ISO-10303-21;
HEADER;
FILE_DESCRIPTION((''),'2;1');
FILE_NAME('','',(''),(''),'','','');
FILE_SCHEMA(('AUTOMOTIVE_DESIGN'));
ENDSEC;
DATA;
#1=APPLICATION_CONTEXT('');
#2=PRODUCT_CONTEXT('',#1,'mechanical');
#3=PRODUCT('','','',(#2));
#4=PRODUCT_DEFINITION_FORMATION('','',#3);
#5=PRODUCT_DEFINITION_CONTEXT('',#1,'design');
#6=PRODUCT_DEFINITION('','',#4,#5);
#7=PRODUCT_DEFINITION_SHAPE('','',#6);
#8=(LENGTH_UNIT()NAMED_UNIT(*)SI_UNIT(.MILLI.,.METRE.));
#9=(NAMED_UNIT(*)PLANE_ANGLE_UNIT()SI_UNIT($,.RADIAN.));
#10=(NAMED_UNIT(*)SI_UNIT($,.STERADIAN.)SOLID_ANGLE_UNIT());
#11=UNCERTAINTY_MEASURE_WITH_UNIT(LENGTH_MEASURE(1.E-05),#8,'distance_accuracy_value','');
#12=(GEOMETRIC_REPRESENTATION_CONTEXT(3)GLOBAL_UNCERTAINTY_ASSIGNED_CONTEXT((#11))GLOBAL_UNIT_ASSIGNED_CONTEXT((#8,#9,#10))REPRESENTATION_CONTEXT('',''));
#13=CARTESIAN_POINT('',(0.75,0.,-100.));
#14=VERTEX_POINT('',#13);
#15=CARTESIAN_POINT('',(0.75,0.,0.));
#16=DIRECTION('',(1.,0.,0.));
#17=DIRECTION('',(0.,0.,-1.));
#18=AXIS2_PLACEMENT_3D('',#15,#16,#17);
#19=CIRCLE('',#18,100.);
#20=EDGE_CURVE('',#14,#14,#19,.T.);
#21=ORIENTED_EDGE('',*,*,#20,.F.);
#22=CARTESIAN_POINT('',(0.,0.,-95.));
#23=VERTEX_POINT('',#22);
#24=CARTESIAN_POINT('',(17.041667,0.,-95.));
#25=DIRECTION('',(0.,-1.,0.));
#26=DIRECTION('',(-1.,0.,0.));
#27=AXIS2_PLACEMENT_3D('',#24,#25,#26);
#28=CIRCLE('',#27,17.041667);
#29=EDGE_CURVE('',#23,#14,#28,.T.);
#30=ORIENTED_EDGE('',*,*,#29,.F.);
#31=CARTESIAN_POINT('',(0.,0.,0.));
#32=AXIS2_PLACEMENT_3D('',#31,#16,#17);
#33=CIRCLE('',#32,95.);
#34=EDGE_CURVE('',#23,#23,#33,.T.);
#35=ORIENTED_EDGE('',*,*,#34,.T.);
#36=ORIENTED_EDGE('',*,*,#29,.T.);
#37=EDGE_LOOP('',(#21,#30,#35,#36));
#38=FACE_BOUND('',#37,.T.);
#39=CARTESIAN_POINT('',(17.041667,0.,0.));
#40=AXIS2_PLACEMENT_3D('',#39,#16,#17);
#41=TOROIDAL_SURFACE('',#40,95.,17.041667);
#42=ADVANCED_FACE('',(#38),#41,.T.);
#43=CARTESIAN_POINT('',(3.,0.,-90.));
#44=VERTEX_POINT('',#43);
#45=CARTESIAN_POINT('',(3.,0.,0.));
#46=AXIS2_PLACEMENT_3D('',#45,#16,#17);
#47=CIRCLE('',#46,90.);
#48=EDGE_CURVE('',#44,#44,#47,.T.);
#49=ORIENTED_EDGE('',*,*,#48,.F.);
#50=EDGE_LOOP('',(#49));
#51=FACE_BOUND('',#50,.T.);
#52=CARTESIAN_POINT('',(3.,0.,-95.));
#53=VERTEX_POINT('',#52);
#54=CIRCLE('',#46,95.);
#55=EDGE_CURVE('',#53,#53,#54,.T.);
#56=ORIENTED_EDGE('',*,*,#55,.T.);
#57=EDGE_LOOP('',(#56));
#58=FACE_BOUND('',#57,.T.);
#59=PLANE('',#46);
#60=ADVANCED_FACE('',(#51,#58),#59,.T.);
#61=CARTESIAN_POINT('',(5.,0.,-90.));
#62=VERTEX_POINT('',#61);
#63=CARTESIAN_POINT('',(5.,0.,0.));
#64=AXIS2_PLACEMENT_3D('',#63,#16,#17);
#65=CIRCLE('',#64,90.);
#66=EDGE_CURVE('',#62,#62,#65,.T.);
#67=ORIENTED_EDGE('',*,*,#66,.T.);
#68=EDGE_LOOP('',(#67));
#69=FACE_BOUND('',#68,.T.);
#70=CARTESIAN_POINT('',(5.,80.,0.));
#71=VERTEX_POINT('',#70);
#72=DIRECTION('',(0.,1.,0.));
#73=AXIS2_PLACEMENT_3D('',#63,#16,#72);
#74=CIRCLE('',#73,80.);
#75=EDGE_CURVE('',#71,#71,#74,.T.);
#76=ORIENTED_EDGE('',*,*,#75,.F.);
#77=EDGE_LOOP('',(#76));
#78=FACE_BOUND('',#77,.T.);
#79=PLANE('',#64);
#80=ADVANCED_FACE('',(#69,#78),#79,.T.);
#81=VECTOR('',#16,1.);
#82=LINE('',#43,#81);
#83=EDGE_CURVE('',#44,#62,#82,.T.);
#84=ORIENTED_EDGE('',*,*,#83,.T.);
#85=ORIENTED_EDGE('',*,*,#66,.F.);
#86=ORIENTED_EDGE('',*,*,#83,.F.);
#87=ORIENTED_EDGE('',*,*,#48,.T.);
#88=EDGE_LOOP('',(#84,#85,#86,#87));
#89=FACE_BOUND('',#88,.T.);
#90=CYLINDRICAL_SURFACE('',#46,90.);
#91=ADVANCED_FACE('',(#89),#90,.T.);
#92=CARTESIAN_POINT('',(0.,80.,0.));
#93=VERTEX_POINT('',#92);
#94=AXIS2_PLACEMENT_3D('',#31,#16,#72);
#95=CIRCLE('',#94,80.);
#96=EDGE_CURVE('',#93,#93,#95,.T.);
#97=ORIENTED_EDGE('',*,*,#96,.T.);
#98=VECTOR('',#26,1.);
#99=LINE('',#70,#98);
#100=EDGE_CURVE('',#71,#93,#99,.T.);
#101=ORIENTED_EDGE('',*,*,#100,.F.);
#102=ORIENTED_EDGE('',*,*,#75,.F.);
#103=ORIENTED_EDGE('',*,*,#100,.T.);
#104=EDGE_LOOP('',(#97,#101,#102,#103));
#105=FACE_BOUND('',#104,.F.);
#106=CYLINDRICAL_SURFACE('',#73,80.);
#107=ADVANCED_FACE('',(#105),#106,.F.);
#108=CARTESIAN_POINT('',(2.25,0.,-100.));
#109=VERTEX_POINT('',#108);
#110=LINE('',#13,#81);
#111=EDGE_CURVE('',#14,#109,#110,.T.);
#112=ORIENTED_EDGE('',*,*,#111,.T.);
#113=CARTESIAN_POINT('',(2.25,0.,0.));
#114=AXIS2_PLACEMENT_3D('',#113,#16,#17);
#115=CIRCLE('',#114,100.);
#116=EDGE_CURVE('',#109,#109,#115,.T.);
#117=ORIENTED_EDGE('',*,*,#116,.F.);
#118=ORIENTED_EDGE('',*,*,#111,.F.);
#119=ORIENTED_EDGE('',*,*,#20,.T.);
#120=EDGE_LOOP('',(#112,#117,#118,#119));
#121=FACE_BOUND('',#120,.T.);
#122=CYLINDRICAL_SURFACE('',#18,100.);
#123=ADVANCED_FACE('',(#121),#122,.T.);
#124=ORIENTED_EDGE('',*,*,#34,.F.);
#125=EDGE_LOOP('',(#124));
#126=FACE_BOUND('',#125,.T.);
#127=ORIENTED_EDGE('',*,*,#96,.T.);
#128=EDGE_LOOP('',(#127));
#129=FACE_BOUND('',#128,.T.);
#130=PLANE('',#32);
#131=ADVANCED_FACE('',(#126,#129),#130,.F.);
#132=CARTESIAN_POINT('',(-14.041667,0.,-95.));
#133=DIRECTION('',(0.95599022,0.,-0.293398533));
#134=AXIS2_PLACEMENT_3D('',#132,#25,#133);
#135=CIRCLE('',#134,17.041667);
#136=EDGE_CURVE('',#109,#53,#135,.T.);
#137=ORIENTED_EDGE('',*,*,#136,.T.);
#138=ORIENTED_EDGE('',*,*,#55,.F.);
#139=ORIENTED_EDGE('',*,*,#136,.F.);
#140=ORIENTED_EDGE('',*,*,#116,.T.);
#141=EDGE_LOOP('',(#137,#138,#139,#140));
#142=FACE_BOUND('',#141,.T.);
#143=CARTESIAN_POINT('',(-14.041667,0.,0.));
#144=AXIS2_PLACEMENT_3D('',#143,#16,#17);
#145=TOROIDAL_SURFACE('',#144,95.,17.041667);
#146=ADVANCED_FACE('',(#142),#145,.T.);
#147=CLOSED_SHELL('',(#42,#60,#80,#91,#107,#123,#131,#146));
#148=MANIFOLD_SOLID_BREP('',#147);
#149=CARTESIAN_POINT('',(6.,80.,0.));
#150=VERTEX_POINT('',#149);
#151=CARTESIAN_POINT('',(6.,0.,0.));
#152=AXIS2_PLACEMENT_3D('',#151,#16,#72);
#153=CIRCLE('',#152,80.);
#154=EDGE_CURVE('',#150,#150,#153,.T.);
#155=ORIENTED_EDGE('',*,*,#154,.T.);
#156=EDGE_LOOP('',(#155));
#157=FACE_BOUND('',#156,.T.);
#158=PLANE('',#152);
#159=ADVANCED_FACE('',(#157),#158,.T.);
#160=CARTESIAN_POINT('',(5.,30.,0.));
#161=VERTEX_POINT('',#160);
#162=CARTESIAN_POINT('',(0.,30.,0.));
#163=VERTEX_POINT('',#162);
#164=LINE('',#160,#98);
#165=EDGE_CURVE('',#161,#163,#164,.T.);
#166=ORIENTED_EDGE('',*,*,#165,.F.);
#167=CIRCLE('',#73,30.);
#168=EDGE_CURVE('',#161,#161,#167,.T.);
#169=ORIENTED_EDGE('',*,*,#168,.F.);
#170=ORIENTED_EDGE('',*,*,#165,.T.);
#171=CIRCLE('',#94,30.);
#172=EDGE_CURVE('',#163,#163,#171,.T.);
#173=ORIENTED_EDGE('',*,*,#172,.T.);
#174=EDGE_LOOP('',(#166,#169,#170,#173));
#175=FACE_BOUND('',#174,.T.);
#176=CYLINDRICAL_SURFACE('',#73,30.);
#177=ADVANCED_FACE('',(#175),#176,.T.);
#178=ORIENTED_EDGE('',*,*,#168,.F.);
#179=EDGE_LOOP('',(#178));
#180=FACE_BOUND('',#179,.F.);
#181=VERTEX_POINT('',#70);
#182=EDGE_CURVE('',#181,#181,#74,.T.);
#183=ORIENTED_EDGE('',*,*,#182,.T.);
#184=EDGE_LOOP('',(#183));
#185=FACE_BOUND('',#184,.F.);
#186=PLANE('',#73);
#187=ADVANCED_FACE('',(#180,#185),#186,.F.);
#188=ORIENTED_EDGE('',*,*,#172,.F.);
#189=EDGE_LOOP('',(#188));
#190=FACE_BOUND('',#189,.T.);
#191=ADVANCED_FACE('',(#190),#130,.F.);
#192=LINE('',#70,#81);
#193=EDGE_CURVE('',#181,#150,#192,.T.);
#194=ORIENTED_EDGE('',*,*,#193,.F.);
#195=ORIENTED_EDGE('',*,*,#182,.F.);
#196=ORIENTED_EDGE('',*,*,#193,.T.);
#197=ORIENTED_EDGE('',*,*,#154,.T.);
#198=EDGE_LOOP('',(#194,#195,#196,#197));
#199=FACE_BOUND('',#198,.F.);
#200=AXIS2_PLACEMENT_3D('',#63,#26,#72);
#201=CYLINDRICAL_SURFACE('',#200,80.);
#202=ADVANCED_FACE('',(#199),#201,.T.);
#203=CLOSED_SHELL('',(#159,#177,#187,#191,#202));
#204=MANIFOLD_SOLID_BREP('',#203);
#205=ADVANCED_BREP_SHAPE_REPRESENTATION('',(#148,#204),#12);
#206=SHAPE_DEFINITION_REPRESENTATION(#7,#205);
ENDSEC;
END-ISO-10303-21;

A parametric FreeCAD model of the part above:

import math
import FreeCAD as App
import Part
import Sketcher
Q = App.Units.Quantity

doc = App.newDocument("Part")
body = doc.addObject("PartDesign::Body", "Body")
body.AllowCompound = True

# Sketch on XZ plane
sketch1 = doc.addObject("Sketcher::SketchObject", "Sketch")
body.addObject(sketch1)
sketch1.AttachmentSupport = (doc.XZ_Plane, [""])
sketch1.MapMode = "FlatFace"
sketch1.addGeometry(Part.LineSegment(App.Vector(5, 0, 0), App.Vector(0, 0, 0)), False)
sketch1.addGeometry(Part.LineSegment(App.Vector(0, 0, 0), App.Vector(0, -95, 0)), False)
sketch1.addGeometry(Part.ArcOfCircle(Part.Circle(App.Vector(17.041667, -95, 0), App.Vector(0, 0, 1), 17.041667), math.radians(180), math.radians(197.061531)), False)
sketch1.addGeometry(Part.LineSegment(App.Vector(0.75, -100, 0), App.Vector(2.25, -100, 0)), False)
sketch1.addGeometry(Part.ArcOfCircle(Part.Circle(App.Vector(-14.041667, -95, 0), App.Vector(0, 0, 1), 17.041667), math.radians(-17.061531), math.radians(0)), False)
sketch1.addGeometry(Part.LineSegment(App.Vector(3, -95, 0), App.Vector(3, -90, 0)), False)
sketch1.addGeometry(Part.LineSegment(App.Vector(3, -90, 0), App.Vector(5, -90, 0)), False)
sketch1.addGeometry(Part.LineSegment(App.Vector(5, -90, 0), App.Vector(5, 0, 0)), False)
sketch1.addConstraint(Sketcher.Constraint("Coincident", 0, 2, 1, 1))
sketch1.addConstraint(Sketcher.Constraint("Tangent", 1, 2, 2, 1))
sketch1.addConstraint(Sketcher.Constraint("Coincident", 2, 2, 3, 1))
sketch1.addConstraint(Sketcher.Constraint("Coincident", 3, 2, 4, 1))
sketch1.addConstraint(Sketcher.Constraint("Tangent", 4, 2, 5, 1))
sketch1.addConstraint(Sketcher.Constraint("Coincident", 5, 2, 6, 1))
sketch1.addConstraint(Sketcher.Constraint("Coincident", 6, 2, 7, 1))
sketch1.addConstraint(Sketcher.Constraint("Coincident", 7, 2, 0, 1))
sketch1.addConstraint(Sketcher.Constraint("Horizontal", 0))
sketch1.addConstraint(Sketcher.Constraint("Vertical", 1))
sketch1.addConstraint(Sketcher.Constraint("Horizontal", 3))
sketch1.addConstraint(Sketcher.Constraint("Vertical", 5))
sketch1.addConstraint(Sketcher.Constraint("Horizontal", 6))
sketch1.addConstraint(Sketcher.Constraint("Vertical", 7))
sketch1.addConstraint(Sketcher.Constraint("Coincident", 0, 2, -1, 1))
sketch1.addConstraint(Sketcher.Constraint("Equal", 2, 4))
sketch1.addConstraint(Sketcher.Constraint("Horizontal", 2, 3, 4, 3))
sketch1.addConstraint(Sketcher.Constraint("Equal", 0, 5))
sketch1.addConstraint(Sketcher.Constraint("DistanceX", 0, 2, 0, 1, Q("5 mm")))
sketch1.addConstraint(Sketcher.Constraint("DistanceX", 6, 1, 6, 2, Q("2 mm")))
sketch1.addConstraint(Sketcher.Constraint("DistanceY", 1, 2, 1, 1, Q("95 mm")))
sketch1.addConstraint(Sketcher.Constraint("DistanceX", 3, 1, 3, 2, Q("1.5 mm")))
sketch1.addConstraint(Sketcher.Constraint("DistanceY", 2, 2, -1, 1, Q("100 mm")))
revolution = doc.addObject("PartDesign::Revolution", "Revolution")
body.addObject(revolution)
revolution.Profile = sketch1
revolution.ReferenceAxis = (sketch1, ["H_Axis"])
revolution.Angle = 360

# Sketch on YZ plane
sketch2 = doc.addObject("Sketcher::SketchObject", "Sketch001")
body.addObject(sketch2)
sketch2.AttachmentSupport = (doc.YZ_Plane, [""])
sketch2.MapMode = "FlatFace"
sketch2.AttachmentOffset = App.Placement(App.Vector(0, 0, 5), App.Rotation())
sketch2.addGeometry(Part.Circle(App.Vector(0, 0, 0), App.Vector(0, 0, 1), 80), False)
sketch2.addGeometry(Part.Circle(App.Vector(0, 0, 0), App.Vector(0, 0, 1), 30), False)
sketch2.addConstraint(Sketcher.Constraint("Coincident", 0, 3, -1, 1))
sketch2.addConstraint(Sketcher.Constraint("Coincident", 1, 3, -1, 1))
sketch2.addConstraint(Sketcher.Constraint("Diameter", 0, Q("160 mm")))
sketch2.addConstraint(Sketcher.Constraint("Diameter", 1, Q("60 mm")))
pocket1 = doc.addObject("PartDesign::Pocket", "Pocket")
body.addObject(pocket1)
pocket1.Profile = sketch2
pocket1.Type = "ThroughAll"

# Sketch on YZ plane
sketch3 = doc.addObject("Sketcher::SketchObject", "Sketch002")
body.addObject(sketch3)
sketch3.AttachmentSupport = (doc.YZ_Plane, [""])
sketch3.MapMode = "FlatFace"
sketch3.AttachmentOffset = App.Placement(App.Vector(0, 0, 5), App.Rotation())
sketch3.addGeometry(Part.Circle(App.Vector(0, 0, 0), App.Vector(0, 0, 1), 80), False)
sketch3.addConstraint(Sketcher.Constraint("Coincident", 0, 3, -1, 1))
sketch3.addConstraint(Sketcher.Constraint("Diameter", 0, Q("160 mm")))
pad1 = doc.addObject("PartDesign::Pad", "Pad")
body.addObject(pad1)
pad1.Profile = sketch3
pad1.Length = 1

doc.recompute()
